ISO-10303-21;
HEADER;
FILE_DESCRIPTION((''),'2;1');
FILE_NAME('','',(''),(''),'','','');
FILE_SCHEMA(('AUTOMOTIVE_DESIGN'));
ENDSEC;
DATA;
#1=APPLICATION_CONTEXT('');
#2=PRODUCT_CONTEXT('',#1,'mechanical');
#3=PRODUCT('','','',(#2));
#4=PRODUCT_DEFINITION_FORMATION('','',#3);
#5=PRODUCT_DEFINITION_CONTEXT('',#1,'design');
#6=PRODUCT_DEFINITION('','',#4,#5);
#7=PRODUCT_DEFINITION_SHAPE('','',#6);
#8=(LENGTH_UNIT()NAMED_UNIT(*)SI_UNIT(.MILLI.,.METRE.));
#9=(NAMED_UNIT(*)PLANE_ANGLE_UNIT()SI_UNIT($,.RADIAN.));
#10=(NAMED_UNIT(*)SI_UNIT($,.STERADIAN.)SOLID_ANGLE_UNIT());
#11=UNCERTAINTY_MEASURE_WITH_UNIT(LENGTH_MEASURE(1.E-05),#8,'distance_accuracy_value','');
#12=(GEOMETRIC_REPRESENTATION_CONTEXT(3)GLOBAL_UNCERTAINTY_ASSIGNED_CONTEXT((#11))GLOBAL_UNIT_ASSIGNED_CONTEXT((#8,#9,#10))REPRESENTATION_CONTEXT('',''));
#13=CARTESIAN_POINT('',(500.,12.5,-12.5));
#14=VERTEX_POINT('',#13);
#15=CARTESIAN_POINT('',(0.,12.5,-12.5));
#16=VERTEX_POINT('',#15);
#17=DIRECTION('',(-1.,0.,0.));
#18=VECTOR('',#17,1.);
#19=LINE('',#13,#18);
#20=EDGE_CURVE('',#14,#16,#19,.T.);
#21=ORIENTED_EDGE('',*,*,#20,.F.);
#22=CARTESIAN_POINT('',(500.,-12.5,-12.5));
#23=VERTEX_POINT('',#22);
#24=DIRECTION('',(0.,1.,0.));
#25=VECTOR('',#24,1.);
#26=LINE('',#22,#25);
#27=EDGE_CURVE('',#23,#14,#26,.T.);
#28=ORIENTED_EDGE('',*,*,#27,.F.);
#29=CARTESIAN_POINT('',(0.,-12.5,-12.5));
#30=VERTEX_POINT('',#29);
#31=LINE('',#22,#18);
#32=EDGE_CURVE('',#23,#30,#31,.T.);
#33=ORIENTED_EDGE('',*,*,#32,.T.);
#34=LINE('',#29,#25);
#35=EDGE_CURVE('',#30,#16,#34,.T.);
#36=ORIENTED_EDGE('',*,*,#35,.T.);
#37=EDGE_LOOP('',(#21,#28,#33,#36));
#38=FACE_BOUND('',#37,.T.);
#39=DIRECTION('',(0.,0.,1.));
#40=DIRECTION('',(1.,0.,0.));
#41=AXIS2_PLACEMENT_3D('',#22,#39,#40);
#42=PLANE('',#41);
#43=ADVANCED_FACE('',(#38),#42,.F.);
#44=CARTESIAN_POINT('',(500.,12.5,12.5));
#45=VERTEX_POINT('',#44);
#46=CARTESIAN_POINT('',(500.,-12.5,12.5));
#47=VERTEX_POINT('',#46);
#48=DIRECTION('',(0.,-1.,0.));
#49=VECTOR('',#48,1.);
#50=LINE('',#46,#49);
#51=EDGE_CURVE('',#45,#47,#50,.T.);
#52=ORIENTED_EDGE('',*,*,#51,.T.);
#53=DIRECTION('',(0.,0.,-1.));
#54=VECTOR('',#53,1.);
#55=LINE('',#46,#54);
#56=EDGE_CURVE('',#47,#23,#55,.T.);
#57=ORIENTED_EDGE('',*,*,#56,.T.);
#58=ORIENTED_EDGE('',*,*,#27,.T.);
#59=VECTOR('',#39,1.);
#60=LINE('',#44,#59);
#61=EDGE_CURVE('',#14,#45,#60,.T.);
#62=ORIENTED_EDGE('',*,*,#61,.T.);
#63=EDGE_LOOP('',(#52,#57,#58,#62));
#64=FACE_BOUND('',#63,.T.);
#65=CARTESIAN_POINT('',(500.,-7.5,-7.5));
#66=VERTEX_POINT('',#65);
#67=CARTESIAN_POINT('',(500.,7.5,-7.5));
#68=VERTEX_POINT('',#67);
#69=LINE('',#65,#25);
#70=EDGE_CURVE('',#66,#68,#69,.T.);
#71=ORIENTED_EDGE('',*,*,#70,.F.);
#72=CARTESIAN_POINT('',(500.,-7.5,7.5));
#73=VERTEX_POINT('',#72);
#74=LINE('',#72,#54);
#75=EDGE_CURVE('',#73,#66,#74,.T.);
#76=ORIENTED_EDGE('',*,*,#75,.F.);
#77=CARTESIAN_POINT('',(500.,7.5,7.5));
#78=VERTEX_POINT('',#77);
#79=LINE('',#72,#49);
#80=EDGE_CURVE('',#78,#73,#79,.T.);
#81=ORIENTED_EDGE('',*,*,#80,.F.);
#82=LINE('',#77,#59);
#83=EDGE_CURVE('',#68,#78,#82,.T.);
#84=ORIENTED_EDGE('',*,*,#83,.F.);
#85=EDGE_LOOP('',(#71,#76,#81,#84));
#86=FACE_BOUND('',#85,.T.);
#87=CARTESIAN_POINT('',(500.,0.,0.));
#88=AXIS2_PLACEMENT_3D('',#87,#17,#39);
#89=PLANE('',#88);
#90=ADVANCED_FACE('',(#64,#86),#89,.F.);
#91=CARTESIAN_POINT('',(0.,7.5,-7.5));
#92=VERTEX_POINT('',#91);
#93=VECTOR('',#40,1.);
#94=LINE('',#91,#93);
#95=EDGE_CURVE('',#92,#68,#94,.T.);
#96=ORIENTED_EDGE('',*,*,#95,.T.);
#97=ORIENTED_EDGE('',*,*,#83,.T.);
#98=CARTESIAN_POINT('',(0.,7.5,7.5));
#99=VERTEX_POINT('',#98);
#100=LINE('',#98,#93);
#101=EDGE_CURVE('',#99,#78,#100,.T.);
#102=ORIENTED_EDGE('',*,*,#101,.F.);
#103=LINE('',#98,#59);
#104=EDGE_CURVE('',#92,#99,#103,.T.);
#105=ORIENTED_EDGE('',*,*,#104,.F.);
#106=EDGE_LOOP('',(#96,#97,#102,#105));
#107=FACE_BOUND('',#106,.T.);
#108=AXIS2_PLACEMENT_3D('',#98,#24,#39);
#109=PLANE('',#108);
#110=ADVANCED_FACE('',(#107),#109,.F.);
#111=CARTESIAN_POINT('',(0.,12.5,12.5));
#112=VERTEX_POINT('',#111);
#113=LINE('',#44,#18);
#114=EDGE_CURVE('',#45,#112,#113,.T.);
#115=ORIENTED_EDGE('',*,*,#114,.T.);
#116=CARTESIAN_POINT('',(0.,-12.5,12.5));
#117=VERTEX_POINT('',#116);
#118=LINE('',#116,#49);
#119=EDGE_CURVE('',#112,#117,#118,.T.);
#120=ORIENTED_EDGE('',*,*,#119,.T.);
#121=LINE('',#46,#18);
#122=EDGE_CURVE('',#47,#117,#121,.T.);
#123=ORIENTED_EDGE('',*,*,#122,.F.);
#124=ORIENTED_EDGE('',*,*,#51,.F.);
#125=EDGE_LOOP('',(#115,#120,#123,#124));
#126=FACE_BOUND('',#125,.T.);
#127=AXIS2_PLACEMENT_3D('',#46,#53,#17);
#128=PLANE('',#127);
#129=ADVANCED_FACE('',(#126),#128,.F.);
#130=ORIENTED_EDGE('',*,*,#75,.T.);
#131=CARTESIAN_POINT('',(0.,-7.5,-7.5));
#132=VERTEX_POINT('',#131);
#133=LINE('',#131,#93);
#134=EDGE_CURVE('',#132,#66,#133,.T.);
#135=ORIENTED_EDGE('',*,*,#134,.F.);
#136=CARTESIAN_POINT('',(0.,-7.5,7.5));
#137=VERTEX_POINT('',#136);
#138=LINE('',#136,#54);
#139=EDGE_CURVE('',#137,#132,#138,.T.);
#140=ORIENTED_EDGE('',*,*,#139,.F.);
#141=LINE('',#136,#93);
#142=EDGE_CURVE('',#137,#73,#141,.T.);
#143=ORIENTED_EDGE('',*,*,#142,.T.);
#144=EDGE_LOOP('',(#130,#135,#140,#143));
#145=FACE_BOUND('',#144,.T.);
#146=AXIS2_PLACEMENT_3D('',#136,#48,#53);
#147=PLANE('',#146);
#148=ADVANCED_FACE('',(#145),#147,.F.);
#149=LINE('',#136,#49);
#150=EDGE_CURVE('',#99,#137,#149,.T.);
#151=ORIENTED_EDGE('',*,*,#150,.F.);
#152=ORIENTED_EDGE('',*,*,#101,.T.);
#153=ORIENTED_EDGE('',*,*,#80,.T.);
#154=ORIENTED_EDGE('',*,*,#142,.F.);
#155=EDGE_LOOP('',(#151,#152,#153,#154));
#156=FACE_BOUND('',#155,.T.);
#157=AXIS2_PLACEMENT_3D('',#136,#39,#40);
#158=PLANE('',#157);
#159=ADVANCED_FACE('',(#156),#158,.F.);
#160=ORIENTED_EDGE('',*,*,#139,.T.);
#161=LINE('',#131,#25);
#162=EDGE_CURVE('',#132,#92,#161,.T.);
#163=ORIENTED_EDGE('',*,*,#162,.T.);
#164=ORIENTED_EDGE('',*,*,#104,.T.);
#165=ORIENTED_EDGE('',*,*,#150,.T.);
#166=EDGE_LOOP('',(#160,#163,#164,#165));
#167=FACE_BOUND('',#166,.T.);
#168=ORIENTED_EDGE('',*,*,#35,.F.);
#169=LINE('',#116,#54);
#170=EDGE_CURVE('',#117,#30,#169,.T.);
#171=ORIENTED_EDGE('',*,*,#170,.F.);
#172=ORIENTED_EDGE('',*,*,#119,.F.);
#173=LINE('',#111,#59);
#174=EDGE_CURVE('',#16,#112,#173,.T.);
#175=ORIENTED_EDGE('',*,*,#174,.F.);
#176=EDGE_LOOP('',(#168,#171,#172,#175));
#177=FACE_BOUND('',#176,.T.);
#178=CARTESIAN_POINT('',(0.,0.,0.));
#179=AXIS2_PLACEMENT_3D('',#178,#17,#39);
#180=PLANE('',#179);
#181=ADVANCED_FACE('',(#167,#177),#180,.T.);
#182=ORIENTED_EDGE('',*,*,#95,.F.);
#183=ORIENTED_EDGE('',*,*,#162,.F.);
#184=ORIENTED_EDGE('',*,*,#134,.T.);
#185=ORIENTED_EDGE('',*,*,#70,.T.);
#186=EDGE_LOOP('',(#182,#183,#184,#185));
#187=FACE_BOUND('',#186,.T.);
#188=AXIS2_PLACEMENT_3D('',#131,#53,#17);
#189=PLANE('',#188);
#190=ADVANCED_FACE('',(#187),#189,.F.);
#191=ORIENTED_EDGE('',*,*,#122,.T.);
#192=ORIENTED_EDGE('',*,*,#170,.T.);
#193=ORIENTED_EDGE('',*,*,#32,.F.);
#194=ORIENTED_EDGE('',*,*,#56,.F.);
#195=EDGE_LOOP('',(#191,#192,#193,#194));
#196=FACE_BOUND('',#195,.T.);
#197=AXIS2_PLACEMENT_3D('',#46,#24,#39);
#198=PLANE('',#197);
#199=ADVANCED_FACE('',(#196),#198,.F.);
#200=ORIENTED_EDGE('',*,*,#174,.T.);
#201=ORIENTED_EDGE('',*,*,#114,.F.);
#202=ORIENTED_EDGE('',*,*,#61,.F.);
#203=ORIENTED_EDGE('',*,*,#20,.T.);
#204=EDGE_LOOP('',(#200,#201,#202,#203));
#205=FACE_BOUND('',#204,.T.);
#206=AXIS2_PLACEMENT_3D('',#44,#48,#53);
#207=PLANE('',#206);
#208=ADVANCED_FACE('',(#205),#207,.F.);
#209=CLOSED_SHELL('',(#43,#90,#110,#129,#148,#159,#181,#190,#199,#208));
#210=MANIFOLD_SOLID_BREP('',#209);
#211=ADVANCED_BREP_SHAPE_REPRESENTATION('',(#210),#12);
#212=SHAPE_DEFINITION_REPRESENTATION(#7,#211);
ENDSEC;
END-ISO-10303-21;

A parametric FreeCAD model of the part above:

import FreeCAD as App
import Part
import Sketcher

V = App.Vector
Q = App.Units.Quantity

doc = App.newDocument("Part")
params = doc.addObject("Spreadsheet::Sheet", "Params")
for row, (alias, value) in enumerate([
    ("sketch1_width", "25 mm"),
    ("pad1_length", "500 mm"),
    ("sketch2_width", "15 mm"),
], start=1):
    params.set(f"A{row}", alias)
    params.set(f"B{row}", "=" + value)
    params.setAlias(f"B{row}", alias)

body = doc.addObject("PartDesign::Body", "Body")

# Sketch on YZ plane
sketch1 = body.newObject("Sketcher::SketchObject", "Sketch")
sketch1.AttachmentSupport = (doc.getObject("YZ_Plane"), [""])
sketch1.MapMode = "FlatFace"
sketch1.addGeometry(Part.LineSegment(V(12, 12, 0), V(-12, 12, 0)), False)
sketch1.addGeometry(Part.LineSegment(V(-12, 12, 0), V(-12, -12, 0)), False)
sketch1.addGeometry(Part.LineSegment(V(-12, -12, 0), V(12, -12, 0)), False)
sketch1.addGeometry(Part.LineSegment(V(12, -12, 0), V(12, 12, 0)), False)
sketch1.addConstraint(Sketcher.Constraint("Coincident", 0, 2, 1, 1))
sketch1.addConstraint(Sketcher.Constraint("Coincident", 1, 2, 2, 1))
sketch1.addConstraint(Sketcher.Constraint("Coincident", 2, 2, 3, 1))
sketch1.addConstraint(Sketcher.Constraint("Coincident", 3, 2, 0, 1))
sketch1.addConstraint(Sketcher.Constraint("Horizontal", 0))
sketch1.addConstraint(Sketcher.Constraint("Vertical", 1))
sketch1.addConstraint(Sketcher.Constraint("Horizontal", 2))
sketch1.addConstraint(Sketcher.Constraint("Vertical", 3))
sketch1.addConstraint(Sketcher.Constraint("Symmetric", 0, 2, 2, 2, -1, 1))
sketch1.addConstraint(Sketcher.Constraint("Equal", 2, 1))
sketch1.addConstraint(Sketcher.Constraint("DistanceX", 0, 2, 0, 1, Q("25 mm")))
sketch1.setExpression("Constraints[10]", "Params.sketch1_width")
pad1 = body.newObject("PartDesign::Pad", "Pad")
pad1.Profile = sketch1
pad1.setExpression("Length", "Params.pad1_length")

# Sketch on YZ plane
sketch2 = body.newObject("Sketcher::SketchObject", "Sketch001")
sketch2.AttachmentSupport = (doc.getObject("YZ_Plane"), [""])
sketch2.MapMode = "FlatFace"
sketch2.AttachmentOffset = App.Placement(V(0, 0, 500), App.Rotation())
sketch2.addGeometry(Part.LineSegment(V(8, 8, 0), V(-8, 8, 0)), False)
sketch2.addGeometry(Part.LineSegment(V(-8, 8, 0), V(-8, -8, 0)), False)
sketch2.addGeometry(Part.LineSegment(V(-8, -8, 0), V(8, -8, 0)), False)
sketch2.addGeometry(Part.LineSegment(V(8, -8, 0), V(8, 8, 0)), False)
sketch2.addConstraint(Sketcher.Constraint("Coincident", 0, 2, 1, 1))
sketch2.addConstraint(Sketcher.Constraint("Coincident", 1, 2, 2, 1))
sketch2.addConstraint(Sketcher.Constraint("Coincident", 2, 2, 3, 1))
sketch2.addConstraint(Sketcher.Constraint("Coincident", 3, 2, 0, 1))
sketch2.addConstraint(Sketcher.Constraint("Horizontal", 0))
sketch2.addConstraint(Sketcher.Constraint("Vertical", 1))
sketch2.addConstraint(Sketcher.Constraint("Horizontal", 2))
sketch2.addConstraint(Sketcher.Constraint("Vertical", 3))
sketch2.addConstraint(Sketcher.Constraint("Symmetric", 0, 2, 2, 2, -1, 1))
sketch2.addConstraint(Sketcher.Constraint("Equal", 2, 1))
sketch2.addConstraint(Sketcher.Constraint("DistanceX", 0, 2, 0, 1, Q("15 mm")))
sketch2.setExpression("Constraints[10]", "Params.sketch2_width")
pocket1 = body.newObject("PartDesign::Pocket", "Pocket")
pocket1.Profile = sketch2
pocket1.Type = "ThroughAll"

doc.recompute()
